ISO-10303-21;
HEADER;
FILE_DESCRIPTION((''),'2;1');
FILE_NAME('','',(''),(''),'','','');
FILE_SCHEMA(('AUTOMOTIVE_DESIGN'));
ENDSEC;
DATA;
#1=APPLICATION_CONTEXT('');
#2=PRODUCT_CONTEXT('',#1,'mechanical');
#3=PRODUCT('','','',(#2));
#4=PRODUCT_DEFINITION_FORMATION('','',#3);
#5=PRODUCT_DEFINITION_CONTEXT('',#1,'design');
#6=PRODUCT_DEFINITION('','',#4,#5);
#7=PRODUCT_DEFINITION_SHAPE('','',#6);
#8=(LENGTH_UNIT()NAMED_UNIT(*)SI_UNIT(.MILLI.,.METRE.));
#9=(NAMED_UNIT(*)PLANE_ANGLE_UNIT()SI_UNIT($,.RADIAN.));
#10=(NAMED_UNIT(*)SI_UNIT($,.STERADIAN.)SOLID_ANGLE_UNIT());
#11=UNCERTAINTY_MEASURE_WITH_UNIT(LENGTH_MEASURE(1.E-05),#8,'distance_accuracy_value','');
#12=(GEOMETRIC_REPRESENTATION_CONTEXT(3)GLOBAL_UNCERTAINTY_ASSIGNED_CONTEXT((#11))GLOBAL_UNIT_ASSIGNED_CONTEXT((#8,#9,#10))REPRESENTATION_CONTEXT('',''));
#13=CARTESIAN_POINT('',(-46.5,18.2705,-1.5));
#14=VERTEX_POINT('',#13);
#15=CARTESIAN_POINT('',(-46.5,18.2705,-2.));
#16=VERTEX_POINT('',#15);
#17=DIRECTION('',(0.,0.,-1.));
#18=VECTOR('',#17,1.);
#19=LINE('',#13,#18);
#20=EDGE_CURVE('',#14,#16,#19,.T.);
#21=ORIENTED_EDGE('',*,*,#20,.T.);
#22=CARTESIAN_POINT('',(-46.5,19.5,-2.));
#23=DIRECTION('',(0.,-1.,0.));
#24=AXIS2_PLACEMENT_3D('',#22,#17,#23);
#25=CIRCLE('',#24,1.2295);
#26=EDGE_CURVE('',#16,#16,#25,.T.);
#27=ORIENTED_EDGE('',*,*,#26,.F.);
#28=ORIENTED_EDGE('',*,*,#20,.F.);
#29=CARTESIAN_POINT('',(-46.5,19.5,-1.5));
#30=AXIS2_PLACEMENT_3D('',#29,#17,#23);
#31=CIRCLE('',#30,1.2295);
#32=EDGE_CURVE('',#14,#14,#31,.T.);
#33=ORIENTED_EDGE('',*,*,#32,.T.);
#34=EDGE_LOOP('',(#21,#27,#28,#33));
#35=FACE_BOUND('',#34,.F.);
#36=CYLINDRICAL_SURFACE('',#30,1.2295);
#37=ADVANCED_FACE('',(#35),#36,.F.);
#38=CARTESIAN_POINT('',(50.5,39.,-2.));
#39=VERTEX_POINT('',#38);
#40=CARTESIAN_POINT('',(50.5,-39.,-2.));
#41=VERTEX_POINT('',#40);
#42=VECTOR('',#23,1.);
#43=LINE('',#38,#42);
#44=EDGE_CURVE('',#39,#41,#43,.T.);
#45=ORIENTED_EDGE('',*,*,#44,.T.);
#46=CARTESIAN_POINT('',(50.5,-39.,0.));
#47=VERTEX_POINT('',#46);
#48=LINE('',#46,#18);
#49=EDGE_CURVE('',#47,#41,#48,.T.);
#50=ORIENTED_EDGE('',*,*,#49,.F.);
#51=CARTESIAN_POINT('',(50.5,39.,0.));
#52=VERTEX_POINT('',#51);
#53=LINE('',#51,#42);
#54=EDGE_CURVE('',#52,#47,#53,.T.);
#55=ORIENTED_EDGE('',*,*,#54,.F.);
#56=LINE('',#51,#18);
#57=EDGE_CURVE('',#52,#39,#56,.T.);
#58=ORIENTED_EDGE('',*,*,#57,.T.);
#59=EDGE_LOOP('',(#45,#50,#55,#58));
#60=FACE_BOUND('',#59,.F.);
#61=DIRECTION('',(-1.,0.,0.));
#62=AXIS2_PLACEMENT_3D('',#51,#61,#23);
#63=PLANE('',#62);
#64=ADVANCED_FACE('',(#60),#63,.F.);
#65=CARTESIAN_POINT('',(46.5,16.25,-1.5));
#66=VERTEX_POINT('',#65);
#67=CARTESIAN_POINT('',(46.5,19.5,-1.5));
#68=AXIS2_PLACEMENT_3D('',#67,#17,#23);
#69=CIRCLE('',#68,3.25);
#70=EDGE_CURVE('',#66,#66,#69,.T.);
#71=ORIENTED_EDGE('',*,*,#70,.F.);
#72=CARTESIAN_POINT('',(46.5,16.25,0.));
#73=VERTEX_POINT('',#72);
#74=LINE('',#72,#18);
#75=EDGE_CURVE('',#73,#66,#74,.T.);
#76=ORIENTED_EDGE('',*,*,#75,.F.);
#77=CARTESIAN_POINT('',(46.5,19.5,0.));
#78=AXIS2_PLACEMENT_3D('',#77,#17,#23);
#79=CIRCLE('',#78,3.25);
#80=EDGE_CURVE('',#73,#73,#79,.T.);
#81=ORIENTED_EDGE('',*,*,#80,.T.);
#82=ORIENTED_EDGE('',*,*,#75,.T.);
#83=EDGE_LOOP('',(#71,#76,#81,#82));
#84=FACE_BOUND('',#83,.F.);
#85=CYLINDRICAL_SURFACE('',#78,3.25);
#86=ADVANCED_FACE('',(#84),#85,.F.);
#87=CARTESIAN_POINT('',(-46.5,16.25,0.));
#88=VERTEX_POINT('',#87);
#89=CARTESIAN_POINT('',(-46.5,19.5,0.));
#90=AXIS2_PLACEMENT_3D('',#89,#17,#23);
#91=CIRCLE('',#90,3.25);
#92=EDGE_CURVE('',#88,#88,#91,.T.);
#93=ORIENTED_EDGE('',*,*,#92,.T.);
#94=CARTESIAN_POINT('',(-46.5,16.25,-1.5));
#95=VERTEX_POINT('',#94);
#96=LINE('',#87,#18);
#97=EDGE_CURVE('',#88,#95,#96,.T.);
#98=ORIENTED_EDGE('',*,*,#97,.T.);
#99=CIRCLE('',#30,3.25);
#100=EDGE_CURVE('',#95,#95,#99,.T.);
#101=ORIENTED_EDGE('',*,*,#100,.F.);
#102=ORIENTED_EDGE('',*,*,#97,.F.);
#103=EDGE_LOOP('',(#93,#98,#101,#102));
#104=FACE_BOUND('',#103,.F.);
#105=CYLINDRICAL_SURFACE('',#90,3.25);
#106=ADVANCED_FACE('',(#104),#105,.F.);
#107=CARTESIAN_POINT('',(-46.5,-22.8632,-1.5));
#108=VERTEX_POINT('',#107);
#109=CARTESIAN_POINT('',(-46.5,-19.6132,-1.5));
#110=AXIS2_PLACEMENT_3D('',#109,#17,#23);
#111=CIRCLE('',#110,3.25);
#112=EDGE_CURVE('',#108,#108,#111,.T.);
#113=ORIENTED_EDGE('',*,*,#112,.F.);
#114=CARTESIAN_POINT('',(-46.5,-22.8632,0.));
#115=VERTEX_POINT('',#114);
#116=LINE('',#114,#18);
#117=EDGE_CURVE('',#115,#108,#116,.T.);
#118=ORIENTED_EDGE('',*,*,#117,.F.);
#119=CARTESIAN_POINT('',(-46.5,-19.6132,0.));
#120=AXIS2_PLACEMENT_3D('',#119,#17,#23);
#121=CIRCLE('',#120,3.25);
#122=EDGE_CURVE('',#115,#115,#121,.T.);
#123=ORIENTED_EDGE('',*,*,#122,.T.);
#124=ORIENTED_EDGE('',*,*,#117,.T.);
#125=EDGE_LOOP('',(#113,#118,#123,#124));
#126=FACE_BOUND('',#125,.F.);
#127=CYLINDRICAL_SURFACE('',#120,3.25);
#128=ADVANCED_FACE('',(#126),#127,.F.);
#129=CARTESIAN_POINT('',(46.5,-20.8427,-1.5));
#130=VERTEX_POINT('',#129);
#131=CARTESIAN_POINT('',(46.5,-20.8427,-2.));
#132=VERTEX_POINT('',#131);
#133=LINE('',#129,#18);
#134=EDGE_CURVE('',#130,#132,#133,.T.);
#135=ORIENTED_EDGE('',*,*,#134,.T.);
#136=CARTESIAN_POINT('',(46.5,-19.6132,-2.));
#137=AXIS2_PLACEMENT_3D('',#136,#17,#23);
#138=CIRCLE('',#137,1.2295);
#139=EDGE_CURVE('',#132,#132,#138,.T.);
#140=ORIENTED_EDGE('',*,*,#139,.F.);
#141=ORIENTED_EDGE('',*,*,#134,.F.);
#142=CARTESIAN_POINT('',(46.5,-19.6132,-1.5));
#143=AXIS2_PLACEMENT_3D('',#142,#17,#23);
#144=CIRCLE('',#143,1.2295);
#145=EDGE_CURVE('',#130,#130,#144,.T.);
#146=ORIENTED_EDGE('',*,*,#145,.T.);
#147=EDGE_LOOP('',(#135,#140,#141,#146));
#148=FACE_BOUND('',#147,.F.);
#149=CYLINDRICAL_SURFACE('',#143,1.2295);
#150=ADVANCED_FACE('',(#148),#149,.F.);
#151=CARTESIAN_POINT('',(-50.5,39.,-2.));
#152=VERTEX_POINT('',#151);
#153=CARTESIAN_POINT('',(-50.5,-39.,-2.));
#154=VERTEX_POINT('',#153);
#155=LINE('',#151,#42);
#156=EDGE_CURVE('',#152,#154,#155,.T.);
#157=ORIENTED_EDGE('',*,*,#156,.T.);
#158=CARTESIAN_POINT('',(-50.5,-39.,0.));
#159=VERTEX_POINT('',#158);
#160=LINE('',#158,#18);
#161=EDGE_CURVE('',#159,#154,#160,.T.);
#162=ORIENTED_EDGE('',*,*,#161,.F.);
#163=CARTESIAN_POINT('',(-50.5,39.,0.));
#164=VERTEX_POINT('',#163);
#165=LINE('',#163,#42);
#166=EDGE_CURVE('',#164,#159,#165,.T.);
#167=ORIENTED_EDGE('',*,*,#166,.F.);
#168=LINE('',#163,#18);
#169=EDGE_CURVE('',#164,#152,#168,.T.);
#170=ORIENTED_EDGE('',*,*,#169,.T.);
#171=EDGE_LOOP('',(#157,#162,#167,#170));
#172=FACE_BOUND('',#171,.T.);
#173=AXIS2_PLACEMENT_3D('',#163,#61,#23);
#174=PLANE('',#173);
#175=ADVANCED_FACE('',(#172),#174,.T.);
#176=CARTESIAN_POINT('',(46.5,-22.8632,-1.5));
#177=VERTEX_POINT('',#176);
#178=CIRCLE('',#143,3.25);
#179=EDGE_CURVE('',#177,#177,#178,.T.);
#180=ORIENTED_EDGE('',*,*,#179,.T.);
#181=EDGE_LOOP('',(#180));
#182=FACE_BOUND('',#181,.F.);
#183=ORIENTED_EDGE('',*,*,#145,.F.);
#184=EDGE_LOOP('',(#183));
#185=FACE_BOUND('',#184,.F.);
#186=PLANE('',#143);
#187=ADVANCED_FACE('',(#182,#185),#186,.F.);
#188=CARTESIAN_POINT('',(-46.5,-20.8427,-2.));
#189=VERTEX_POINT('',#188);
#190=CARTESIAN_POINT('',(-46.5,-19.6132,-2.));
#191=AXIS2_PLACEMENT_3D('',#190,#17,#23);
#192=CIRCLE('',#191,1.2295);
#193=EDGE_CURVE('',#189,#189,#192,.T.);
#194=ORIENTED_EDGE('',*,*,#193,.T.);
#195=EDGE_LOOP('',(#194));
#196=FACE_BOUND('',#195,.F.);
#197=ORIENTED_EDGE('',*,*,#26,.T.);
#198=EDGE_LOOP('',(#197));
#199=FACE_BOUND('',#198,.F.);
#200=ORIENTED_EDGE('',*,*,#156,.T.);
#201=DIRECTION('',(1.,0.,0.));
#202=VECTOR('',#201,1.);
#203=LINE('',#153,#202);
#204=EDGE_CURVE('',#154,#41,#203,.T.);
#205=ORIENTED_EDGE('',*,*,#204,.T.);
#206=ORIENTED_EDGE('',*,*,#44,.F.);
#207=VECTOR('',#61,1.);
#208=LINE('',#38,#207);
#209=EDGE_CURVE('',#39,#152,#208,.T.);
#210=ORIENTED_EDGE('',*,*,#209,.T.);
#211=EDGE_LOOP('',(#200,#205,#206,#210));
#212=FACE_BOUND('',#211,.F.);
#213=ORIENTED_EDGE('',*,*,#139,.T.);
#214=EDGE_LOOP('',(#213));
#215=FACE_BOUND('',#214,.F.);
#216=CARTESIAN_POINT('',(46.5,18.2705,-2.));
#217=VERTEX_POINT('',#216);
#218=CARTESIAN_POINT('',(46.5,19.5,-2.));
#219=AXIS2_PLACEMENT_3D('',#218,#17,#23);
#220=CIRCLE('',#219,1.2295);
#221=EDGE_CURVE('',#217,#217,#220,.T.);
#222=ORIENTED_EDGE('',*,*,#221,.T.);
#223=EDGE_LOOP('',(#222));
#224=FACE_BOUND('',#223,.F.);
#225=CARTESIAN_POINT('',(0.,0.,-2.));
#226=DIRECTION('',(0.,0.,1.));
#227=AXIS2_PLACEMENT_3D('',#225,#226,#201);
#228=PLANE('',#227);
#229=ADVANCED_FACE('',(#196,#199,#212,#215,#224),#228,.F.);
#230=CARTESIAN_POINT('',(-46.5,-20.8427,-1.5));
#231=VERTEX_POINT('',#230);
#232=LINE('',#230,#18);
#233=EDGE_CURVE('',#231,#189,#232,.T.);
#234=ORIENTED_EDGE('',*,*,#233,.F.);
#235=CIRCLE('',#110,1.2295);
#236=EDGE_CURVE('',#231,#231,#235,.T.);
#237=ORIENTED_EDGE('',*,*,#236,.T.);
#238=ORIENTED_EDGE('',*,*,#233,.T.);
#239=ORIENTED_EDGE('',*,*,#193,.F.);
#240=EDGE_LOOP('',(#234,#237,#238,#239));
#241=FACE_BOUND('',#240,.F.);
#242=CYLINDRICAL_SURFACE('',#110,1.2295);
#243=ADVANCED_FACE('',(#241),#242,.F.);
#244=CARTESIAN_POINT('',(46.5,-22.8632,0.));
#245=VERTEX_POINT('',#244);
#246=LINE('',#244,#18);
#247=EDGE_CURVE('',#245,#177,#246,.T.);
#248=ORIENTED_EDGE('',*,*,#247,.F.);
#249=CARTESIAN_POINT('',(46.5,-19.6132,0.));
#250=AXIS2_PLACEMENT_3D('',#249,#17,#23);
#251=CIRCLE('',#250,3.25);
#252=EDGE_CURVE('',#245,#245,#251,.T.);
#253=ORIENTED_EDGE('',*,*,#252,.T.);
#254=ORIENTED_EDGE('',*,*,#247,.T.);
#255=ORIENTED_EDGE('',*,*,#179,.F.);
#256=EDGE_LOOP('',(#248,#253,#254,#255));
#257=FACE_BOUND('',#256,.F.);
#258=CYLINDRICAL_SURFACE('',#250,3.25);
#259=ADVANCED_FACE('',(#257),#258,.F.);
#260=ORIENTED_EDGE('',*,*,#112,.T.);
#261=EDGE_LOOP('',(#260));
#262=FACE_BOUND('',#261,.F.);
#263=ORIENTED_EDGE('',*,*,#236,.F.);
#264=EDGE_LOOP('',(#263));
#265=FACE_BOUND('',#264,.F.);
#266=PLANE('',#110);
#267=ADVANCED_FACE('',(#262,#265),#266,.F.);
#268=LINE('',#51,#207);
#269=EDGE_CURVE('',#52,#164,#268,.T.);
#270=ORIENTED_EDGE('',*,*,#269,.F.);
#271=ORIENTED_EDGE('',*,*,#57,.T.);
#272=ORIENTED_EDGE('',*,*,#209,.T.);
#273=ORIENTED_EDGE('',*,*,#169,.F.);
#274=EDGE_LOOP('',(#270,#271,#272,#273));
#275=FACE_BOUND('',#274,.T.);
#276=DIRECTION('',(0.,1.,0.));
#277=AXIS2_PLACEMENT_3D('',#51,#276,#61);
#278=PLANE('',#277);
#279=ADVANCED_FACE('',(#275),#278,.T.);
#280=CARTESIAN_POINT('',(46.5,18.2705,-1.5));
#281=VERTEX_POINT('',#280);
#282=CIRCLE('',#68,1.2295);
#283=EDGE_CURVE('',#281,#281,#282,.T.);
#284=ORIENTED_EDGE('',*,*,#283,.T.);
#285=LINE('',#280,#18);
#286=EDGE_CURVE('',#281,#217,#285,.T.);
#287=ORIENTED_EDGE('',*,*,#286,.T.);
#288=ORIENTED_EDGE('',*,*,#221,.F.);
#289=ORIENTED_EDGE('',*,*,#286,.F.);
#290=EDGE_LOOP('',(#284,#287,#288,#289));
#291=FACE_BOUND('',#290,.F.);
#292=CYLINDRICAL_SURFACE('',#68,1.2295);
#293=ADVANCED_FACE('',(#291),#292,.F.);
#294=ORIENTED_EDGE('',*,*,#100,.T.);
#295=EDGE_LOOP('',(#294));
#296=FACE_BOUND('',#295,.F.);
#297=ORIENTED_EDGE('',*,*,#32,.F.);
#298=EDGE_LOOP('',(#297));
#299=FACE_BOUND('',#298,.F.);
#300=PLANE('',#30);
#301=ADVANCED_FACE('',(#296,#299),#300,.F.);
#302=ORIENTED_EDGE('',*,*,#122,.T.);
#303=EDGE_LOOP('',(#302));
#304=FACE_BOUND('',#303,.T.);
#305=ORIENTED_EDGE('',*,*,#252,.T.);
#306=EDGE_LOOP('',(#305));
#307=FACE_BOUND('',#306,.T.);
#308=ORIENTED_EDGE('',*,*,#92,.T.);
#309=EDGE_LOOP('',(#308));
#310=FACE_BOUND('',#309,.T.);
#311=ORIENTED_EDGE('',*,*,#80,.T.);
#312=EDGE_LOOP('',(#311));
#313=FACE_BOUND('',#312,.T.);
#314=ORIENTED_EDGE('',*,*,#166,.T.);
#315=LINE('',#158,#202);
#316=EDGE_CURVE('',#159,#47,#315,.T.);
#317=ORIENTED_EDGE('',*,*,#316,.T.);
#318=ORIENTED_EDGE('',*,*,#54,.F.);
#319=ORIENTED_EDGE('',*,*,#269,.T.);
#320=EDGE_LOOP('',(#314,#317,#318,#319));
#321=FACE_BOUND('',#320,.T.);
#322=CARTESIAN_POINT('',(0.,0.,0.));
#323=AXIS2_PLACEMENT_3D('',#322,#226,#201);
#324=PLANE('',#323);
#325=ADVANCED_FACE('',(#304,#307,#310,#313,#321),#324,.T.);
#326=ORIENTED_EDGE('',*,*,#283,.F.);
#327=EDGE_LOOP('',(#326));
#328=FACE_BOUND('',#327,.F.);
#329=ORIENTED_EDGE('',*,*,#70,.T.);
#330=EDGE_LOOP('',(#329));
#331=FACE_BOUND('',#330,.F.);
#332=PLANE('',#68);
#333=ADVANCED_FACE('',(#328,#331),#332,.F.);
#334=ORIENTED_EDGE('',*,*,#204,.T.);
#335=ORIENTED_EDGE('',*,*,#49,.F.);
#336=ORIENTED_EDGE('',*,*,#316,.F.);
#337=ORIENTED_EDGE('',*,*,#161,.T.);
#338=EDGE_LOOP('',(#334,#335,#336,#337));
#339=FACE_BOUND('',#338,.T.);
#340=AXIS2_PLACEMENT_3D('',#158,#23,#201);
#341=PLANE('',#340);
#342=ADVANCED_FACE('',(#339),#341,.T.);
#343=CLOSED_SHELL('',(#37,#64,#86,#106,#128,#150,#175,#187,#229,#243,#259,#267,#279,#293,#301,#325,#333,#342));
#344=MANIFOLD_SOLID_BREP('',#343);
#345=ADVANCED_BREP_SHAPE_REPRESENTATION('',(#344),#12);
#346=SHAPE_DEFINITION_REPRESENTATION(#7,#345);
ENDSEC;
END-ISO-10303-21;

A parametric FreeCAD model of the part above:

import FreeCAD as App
import Part
import Sketcher

V = App.Vector
Q = App.Units.Quantity


def add_polygon(sketch, points):
    """Adds a closed chain of lines whose ends are joined by coincident constraints."""
    first, n = sketch.GeometryCount, len(points)
    for a, b in zip(points, points[1:] + points[:1]):
        sketch.addGeometry(Part.LineSegment(App.Vector(*a, 0), App.Vector(*b, 0)), False)
    for i in range(n):
        sketch.addConstraint(Sketcher.Constraint("Coincident", first + i, 2, first + (i + 1) % n, 1))

doc = App.newDocument("Part")
body = doc.addObject("PartDesign::Body", "Body")

# Sketch on XY plane
sketch1 = doc.addObject("Sketcher::SketchObject", "Sketch")
body.addObject(sketch1)
sketch1.AttachmentSupport = (doc.XY_Plane, [""])
sketch1.MapMode = "FlatFace"
add_polygon(sketch1, [(50, -39), (50, 39), (-50, 39), (-50, -39)])  # lines 0-3
sketch1.addConstraint([
    Sketcher.Constraint("Vertical", 0),
    Sketcher.Constraint("Horizontal", 1),
    Sketcher.Constraint("Vertical", 2),
    Sketcher.Constraint("Horizontal", 3),
    Sketcher.Constraint("Symmetric", 0, 2, 2, 2, -1, 1),
    Sketcher.Constraint("DistanceX", 1, 2, 1, 1, Q("101 mm")),
    Sketcher.Constraint("DistanceY", 0, 1, 0, 2, Q("78 mm")),
])
pad1 = doc.addObject("PartDesign::Pad", "Pad")
body.addObject(pad1)
pad1.Profile = sketch1
pad1.Length = 2
pad1.Reversed = True

# Sketch on XY plane
sketch2 = doc.addObject("Sketcher::SketchObject", "Sketch001")
body.addObject(sketch2)
sketch2.AttachmentSupport = (doc.XY_Plane, [""])
sketch2.MapMode = "FlatFace"
sketch2.addGeometry([
    Part.Circle(V(-46.5, 19.5, 0), V(0, 0, 1), 1.2),
    Part.Circle(V(-46.5, -19.6, 0), V(0, 0, 1), 1.2),
    Part.Circle(V(46.5, -19.6, 0), V(0, 0, 1), 1.2),
    Part.Circle(V(46.5, 19.5, 0), V(0, 0, 1), 1.2),
], False)
sketch2.addConstraint([
    Sketcher.Constraint("Equal", 0, 1),
    Sketcher.Constraint("Equal", 1, 2),
    Sketcher.Constraint("Equal", 2, 3),
    Sketcher.Constraint("Symmetric", 1, 3, 2, 3, -2),
    Sketcher.Constraint("Symmetric", 0, 3, 3, 3, -2),
    Sketcher.Constraint("Vertical", 0, 3, 1, 3),
    Sketcher.Constraint("Diameter", 0, Q("2.459 mm")),
    Sketcher.Constraint("DistanceX", 1, 3, 2, 3, Q("93 mm")),
    Sketcher.Constraint("DistanceY", -1, 1, 0, 3, Q("19.5 mm")),
    Sketcher.Constraint("DistanceY", 1, 3, -1, 1, Q("19.6132 mm")),
])
doc.recompute()
hole = doc.addObject("PartDesign::Hole", "Hole")
body.addObject(hole)
hole.Profile = sketch2
hole.ThreadType = "None"
hole.Diameter = 2.459
hole.DepthType = "ThroughAll"
hole.HoleCutType = "Counterbore"
hole.HoleCutDiameter = 6.5
hole.HoleCutDepth = 1.5

doc.recompute()
